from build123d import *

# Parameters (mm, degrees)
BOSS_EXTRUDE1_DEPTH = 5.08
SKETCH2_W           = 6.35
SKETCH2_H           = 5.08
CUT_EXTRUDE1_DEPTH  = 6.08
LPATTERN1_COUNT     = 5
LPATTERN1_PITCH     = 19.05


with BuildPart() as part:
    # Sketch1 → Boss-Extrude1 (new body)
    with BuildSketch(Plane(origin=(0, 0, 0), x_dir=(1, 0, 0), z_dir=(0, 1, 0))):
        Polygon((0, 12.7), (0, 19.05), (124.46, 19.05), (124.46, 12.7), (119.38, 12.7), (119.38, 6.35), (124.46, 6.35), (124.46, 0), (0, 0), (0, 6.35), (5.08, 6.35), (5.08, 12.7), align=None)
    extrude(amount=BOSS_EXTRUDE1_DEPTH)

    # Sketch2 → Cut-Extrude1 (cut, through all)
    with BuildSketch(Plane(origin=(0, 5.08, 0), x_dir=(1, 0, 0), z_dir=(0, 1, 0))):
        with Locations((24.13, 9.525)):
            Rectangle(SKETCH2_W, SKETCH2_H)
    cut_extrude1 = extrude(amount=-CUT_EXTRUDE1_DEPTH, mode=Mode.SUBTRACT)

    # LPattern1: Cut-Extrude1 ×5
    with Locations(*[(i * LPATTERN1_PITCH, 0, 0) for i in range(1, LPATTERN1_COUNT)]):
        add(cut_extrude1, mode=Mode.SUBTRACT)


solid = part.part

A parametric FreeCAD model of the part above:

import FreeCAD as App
import Part
import Sketcher
from FreeCAD import Vector
Q = App.Units.Quantity


def add_polygon(sketch, points):
    """Adds a closed chain of lines whose ends are joined by coincident constraints."""
    first, n = sketch.GeometryCount, len(points)
    for a, b in zip(points, points[1:] + points[:1]):
        sketch.addGeometry(Part.LineSegment(App.Vector(*a, 0), App.Vector(*b, 0)), False)
    for i in range(n):
        sketch.addConstraint(Sketcher.Constraint("Coincident", first + i, 2, first + (i + 1) % n, 1))

doc = App.newDocument("Part")
body = doc.addObject("PartDesign::Body", "Body")

sketch1 = body.newObject("Sketcher::SketchObject", "Sketch")
sketch1.AttachmentSupport = (doc.getObject("XZ_Plane"), [""])
sketch1.MapMode = "FlatFace"
add_polygon(sketch1, [(0, -19), (0, -13), (5, -13), (5, -6), (0, -6), (0, 0), (124, 0), (124, -6), (119, -6), (119, -13), (124, -13), (124, -19)])
sketch1.addConstraint([
    Sketcher.Constraint("Vertical", 0),
    Sketcher.Constraint("Horizontal", 1),
    Sketcher.Constraint("Vertical", 2),
    Sketcher.Constraint("Horizontal", 3),
    Sketcher.Constraint("Vertical", 4),
    Sketcher.Constraint("Horizontal", 5),
    Sketcher.Constraint("Vertical", 6),
    Sketcher.Constraint("Horizontal", 7),
    Sketcher.Constraint("Vertical", 8),
    Sketcher.Constraint("Horizontal", 9),
    Sketcher.Constraint("Vertical", 10),
    Sketcher.Constraint("Horizontal", 11),
    Sketcher.Constraint("Coincident", 4, 2, -1, 1),
    Sketcher.Constraint("PointOnObject", 0, 2, -2),
    Sketcher.Constraint("Horizontal", 3, 2, 6, 2),
    Sketcher.Constraint("Horizontal", 1, 2, 8, 2),
    Sketcher.Constraint("Vertical", 6, 2, 9, 2),
    Sketcher.Constraint("Equal", 3, 7),
    Sketcher.Constraint("Equal", 0, 2),
    Sketcher.Constraint("Equal", 2, 4),
    Sketcher.Constraint("DistanceX", 1, 1, 1, 2, Q("0.2 in")),
    Sketcher.Constraint("DistanceX", 5, 1, 5, 2, Q("4.9 in")),
    Sketcher.Constraint("DistanceY", 0, 1, 0, 2, Q("0.25 in")),
])
pad1 = body.newObject("PartDesign::Pad", "Pad")
pad1.Profile = sketch1
pad1.Length = Q("0.2 in")
pad1.Reversed = True

sketch2 = body.newObject("Sketcher::SketchObject", "Sketch001")
sketch2.AttachmentSupport = (doc.getObject("XZ_Plane"), [""])
sketch2.MapMode = "FlatFace"
sketch2.AttachmentOffset = App.Placement(Vector(0, 0, -0.2 * 25.4), App.Rotation())
add_polygon(sketch2, [(21, -12), (21, -7), (27, -7), (27, -12)])
sketch2.addConstraint([
    Sketcher.Constraint("Vertical", 0),
    Sketcher.Constraint("Horizontal", 1),
    Sketcher.Constraint("Vertical", 2),
    Sketcher.Constraint("Horizontal", 3),
    Sketcher.Constraint("DistanceY", 0, 1, 0, 2, Q("0.2 in")),
    Sketcher.Constraint("DistanceX", 1, 1, 1, 2, Q("0.25 in")),
    Sketcher.Constraint("DistanceX", -1, 1, 0, 2, Q("0.825 in")),
    Sketcher.Constraint("DistanceY", 0, 2, -1, 1, Q("0.275 in")),
])
pocket1 = body.newObject("PartDesign::Pocket", "Pocket")
pocket1.Profile = sketch2
pocket1.Type = "ThroughAll"
pocket1.Reversed = True
doc.recompute()

linearpattern = body.newObject("PartDesign::LinearPattern", "LinearPattern")
linearpattern.Originals = [pocket1]
linearpattern.Direction = (doc.getObject("X_Axis"), [""])
linearpattern.Mode = "offset"
linearpattern.Offset = Q("0.75 in")
linearpattern.Occurrences = 5
body.Tip = linearpattern

doc.recompute()
